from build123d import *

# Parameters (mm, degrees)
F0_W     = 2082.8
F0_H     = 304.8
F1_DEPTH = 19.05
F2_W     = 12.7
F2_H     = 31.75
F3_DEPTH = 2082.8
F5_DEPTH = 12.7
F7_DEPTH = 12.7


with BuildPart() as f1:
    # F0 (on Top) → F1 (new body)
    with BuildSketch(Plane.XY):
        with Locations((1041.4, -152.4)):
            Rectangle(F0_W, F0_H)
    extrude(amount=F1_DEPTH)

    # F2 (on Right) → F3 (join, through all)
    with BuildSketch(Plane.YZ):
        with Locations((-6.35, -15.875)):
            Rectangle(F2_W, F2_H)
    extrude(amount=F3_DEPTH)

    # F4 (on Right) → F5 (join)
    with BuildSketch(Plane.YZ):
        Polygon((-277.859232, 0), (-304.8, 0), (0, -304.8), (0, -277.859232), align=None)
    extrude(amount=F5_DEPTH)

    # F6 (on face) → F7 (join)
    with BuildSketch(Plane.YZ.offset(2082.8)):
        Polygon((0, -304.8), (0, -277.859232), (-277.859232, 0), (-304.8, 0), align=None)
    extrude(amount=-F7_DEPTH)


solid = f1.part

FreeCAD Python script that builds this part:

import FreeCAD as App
import Part
import Sketcher
Q = App.Units.Quantity

doc = App.newDocument("Part")
body = doc.addObject("PartDesign::Body", "Body")

sketch1 = doc.addObject("Sketcher::SketchObject", "Sketch")
body.addObject(sketch1)
sketch1.AttachmentSupport = (doc.XY_Plane, [""])
sketch1.MapMode = "FlatFace"
sketch1.addGeometry([
    Part.LineSegment(App.Vector(0, 0, 0), App.Vector(0, -304.8, 0)),
    Part.LineSegment(App.Vector(0, -304.8, 0), App.Vector(2082.8, -304.8, 0)),
    Part.LineSegment(App.Vector(2082.8, -304.8, 0), App.Vector(2082.8, 0, 0)),
    Part.LineSegment(App.Vector(2082.8, 0, 0), App.Vector(0, 0, 0)),
], False)
sketch1.addConstraint([
    Sketcher.Constraint("Coincident", 0, 2, 1, 1),
    Sketcher.Constraint("Coincident", 1, 2, 2, 1),
    Sketcher.Constraint("Coincident", 2, 2, 3, 1),
    Sketcher.Constraint("Coincident", 3, 2, 0, 1),
    Sketcher.Constraint("Vertical", 0),
    Sketcher.Constraint("Horizontal", 1),
    Sketcher.Constraint("Vertical", 2),
    Sketcher.Constraint("Horizontal", 3),
    Sketcher.Constraint("Coincident", 3, 2, -1, 1),
    Sketcher.Constraint("DistanceX", 1, 1, 1, 2, Q("82 in")),
    Sketcher.Constraint("DistanceY", 0, 2, 0, 1, Q("12 in")),
])
pad1 = doc.addObject("PartDesign::Pad", "Pad")
body.addObject(pad1)
pad1.Profile = sketch1
pad1.Length = Q("0.75 in")

sketch2 = doc.addObject("Sketcher::SketchObject", "Sketch001")
body.addObject(sketch2)
sketch2.AttachmentSupport = (doc.YZ_Plane, [""])
sketch2.MapMode = "FlatFace"
sketch2.addGeometry([
    Part.LineSegment(App.Vector(-12.7, 0, 0), App.Vector(-12.7, -31.75, 0)),
    Part.LineSegment(App.Vector(-12.7, -31.75, 0), App.Vector(0, -31.75, 0)),
    Part.LineSegment(App.Vector(0, -31.75, 0), App.Vector(0, 0, 0)),
    Part.LineSegment(App.Vector(0, 0, 0), App.Vector(-12.7, 0, 0)),
], False)
sketch2.addConstraint([
    Sketcher.Constraint("Coincident", 0, 2, 1, 1),
    Sketcher.Constraint("Coincident", 1, 2, 2, 1),
    Sketcher.Constraint("Coincident", 2, 2, 3, 1),
    Sketcher.Constraint("Coincident", 3, 2, 0, 1),
    Sketcher.Constraint("Vertical", 0),
    Sketcher.Constraint("Horizontal", 1),
    Sketcher.Constraint("Vertical", 2),
    Sketcher.Constraint("Horizontal", 3),
    Sketcher.Constraint("Coincident", 2, 2, -1, 1),
    Sketcher.Constraint("DistanceX", 1, 1, 1, 2, Q("0.5 in")),
    Sketcher.Constraint("DistanceY", 0, 2, 0, 1, Q("1.25 in")),
])
pad2 = doc.addObject("PartDesign::Pad", "Pad001")
body.addObject(pad2)
pad2.Profile = sketch2
pad2.Length = Q("82 in")

sketch3 = doc.addObject("Sketcher::SketchObject", "Sketch002")
body.addObject(sketch3)
sketch3.AttachmentSupport = (doc.YZ_Plane, [""])
sketch3.MapMode = "FlatFace"
sketch3.addGeometry([
    Part.LineSegment(App.Vector(-277.859232, 0, 0), App.Vector(-304.8, 0, 0)),
    Part.LineSegment(App.Vector(-304.8, 0, 0), App.Vector(0, -304.8, 0)),
    Part.LineSegment(App.Vector(0, -304.8, 0), App.Vector(0, -277.859232, 0)),
    Part.LineSegment(App.Vector(0, -277.859232, 0), App.Vector(-277.859232, 0, 0)),
], False)
sketch3.addConstraint([
    Sketcher.Constraint("Coincident", 0, 2, 1, 1),
    Sketcher.Constraint("Coincident", 1, 2, 2, 1),
    Sketcher.Constraint("Coincident", 2, 2, 3, 1),
    Sketcher.Constraint("Coincident", 3, 2, 0, 1),
    Sketcher.Constraint("Horizontal", 0),
    Sketcher.Constraint("Vertical", 2),
    Sketcher.Constraint("PointOnObject", 0, 2, -1),
    Sketcher.Constraint("PointOnObject", 1, 2, -2),
    Sketcher.Constraint("Parallel", 1, 3),
    Sketcher.Constraint("Equal", 0, 2),
    Sketcher.Constraint("DistanceX", 0, 2, -1, 1, Q("12 in")),
    Sketcher.Constraint("DistanceX", 0, 2, 0, 1, 26.940768),
])
pad3 = doc.addObject("PartDesign::Pad", "Pad002")
body.addObject(pad3)
pad3.Profile = sketch3
pad3.Length = Q("0.5 in")

sketch4 = doc.addObject("Sketcher::SketchObject", "Sketch003")
body.addObject(sketch4)
sketch4.AttachmentSupport = (doc.YZ_Plane, [""])
sketch4.MapMode = "FlatFace"
sketch4.AttachmentOffset = App.Placement(App.Vector(0, 0, 82 * 25.4), App.Rotation())
sketch4.addGeometry([
    Part.LineSegment(App.Vector(0, -304.8, 0), App.Vector(0, -277.859232, 0)),
    Part.LineSegment(App.Vector(0, -277.859232, 0), App.Vector(-277.859232, 0, 0)),
    Part.LineSegment(App.Vector(-277.859232, 0, 0), App.Vector(-304.8, 0, 0)),
    Part.LineSegment(App.Vector(-304.8, 0, 0), App.Vector(0, -304.8, 0)),
], False)
sketch4.addConstraint([
    Sketcher.Constraint("Coincident", 0, 2, 1, 1),
    Sketcher.Constraint("Coincident", 1, 2, 2, 1),
    Sketcher.Constraint("Coincident", 2, 2, 3, 1),
    Sketcher.Constraint("Coincident", 3, 2, 0, 1),
    Sketcher.Constraint("Vertical", 0),
    Sketcher.Constraint("Horizontal", 2),
    Sketcher.Constraint("PointOnObject", 0, 2, -2),
    Sketcher.Constraint("PointOnObject", 1, 2, -1),
    Sketcher.Constraint("Parallel", 1, 3),
    Sketcher.Constraint("Equal", 2, 0),
    Sketcher.Constraint("DistanceX", 2, 2, -1, 1, Q("12 in")),
    Sketcher.Constraint("DistanceX", 2, 2, 2, 1, 26.940768),
])
pad4 = doc.addObject("PartDesign::Pad", "Pad003")
body.addObject(pad4)
pad4.Profile = sketch4
pad4.Length = Q("0.5 in")
pad4.Reversed = True

doc.recompute()
